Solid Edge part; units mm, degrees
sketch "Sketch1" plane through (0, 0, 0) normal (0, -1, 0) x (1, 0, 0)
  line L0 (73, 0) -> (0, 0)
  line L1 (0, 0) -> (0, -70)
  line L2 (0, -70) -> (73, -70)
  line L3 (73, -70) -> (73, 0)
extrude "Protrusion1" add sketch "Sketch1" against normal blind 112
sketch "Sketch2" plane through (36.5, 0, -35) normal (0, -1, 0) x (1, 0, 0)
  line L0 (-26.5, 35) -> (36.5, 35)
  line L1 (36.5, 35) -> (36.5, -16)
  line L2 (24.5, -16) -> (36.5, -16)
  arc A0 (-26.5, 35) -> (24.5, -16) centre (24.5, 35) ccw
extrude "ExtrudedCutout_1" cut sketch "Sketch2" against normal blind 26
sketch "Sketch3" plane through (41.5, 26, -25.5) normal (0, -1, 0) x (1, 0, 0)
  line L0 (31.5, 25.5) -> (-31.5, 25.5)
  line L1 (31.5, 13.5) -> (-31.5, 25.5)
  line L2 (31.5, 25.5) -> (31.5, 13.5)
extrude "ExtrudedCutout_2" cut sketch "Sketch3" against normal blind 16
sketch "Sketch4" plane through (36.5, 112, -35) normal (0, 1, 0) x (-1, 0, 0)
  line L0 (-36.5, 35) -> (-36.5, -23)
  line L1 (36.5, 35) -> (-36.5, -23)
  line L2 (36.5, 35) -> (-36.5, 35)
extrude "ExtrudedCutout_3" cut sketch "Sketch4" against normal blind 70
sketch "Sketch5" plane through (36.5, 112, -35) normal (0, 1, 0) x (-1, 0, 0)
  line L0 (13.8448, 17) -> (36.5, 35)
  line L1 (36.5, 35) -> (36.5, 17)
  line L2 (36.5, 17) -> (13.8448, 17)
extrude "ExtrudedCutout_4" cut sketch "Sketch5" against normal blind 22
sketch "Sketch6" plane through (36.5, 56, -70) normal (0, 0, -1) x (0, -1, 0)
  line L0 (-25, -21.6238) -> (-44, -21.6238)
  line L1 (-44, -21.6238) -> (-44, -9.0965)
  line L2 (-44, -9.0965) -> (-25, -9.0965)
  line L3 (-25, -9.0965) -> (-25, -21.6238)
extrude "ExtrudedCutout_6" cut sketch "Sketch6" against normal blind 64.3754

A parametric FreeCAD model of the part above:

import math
import FreeCAD as App
import Part
import Sketcher

V = App.Vector

doc = App.newDocument("Part")
body = doc.addObject("PartDesign::Body", "Body")

sketch1 = doc.addObject("Sketcher::SketchObject", "Sketch")
body.addObject(sketch1)
sketch1.AttachmentSupport = (doc.XZ_Plane, [""])
sketch1.MapMode = "FlatFace"
sketch1.addGeometry(Part.LineSegment(V(73, -70, 0), V(73, 0, 0)), False)
sketch1.addGeometry(Part.LineSegment(V(73, 0, 0), V(0, 0, 0)), False)
sketch1.addGeometry(Part.LineSegment(V(0, 0, 0), V(0, -70, 0)), False)
sketch1.addGeometry(Part.LineSegment(V(0, -70, 0), V(73, -70, 0)), False)
sketch1.addConstraint(Sketcher.Constraint("Coincident", 0, 2, 1, 1))
sketch1.addConstraint(Sketcher.Constraint("Coincident", 1, 2, 2, 1))
sketch1.addConstraint(Sketcher.Constraint("Coincident", 2, 2, 3, 1))
sketch1.addConstraint(Sketcher.Constraint("Coincident", 3, 2, 0, 1))
sketch1.addConstraint(Sketcher.Constraint("Vertical", 0))
sketch1.addConstraint(Sketcher.Constraint("Horizontal", 1))
sketch1.addConstraint(Sketcher.Constraint("Vertical", 2))
sketch1.addConstraint(Sketcher.Constraint("Horizontal", 3))
sketch1.addConstraint(Sketcher.Constraint("Coincident", 1, 2, -1, 1))
sketch1.addConstraint(Sketcher.Constraint("DistanceX", 1, 2, 1, 1, 73.0))
sketch1.addConstraint(Sketcher.Constraint("DistanceY", 0, 1, 0, 2, 70.0))
pad1 = doc.addObject("PartDesign::Pad", "Pad")
body.addObject(pad1)
pad1.Profile = sketch1
pad1.Length = 112
pad1.Reversed = True

sketch2 = doc.addObject("Sketcher::SketchObject", "Sketch001")
body.addObject(sketch2)
sketch2.AttachmentSupport = (doc.XZ_Plane, [""])
sketch2.MapMode = "FlatFace"
sketch2.addGeometry(Part.LineSegment(V(73, 0, 0), V(10, 0, 0)), False)
sketch2.addGeometry(Part.ArcOfCircle(Part.Circle(V(61, 0, 0), V(0, 0, 1), 51), math.radians(180), math.radians(270)), False)
sketch2.addGeometry(Part.LineSegment(V(61, -51, 0), V(73, -51, 0)), False)
sketch2.addGeometry(Part.LineSegment(V(73, -51, 0), V(73, 0, 0)), False)
sketch2.addConstraint(Sketcher.Constraint("Coincident", 0, 2, 1, 1))
sketch2.addConstraint(Sketcher.Constraint("Tangent", 1, 2, 2, 1))
sketch2.addConstraint(Sketcher.Constraint("Coincident", 2, 2, 3, 1))
sketch2.addConstraint(Sketcher.Constraint("Coincident", 3, 2, 0, 1))
sketch2.addConstraint(Sketcher.Constraint("Horizontal", 0))
sketch2.addConstraint(Sketcher.Constraint("Horizontal", 2))
sketch2.addConstraint(Sketcher.Constraint("Vertical", 3))
sketch2.addConstraint(Sketcher.Constraint("PointOnObject", 1, 3, -1))
sketch2.addConstraint(Sketcher.Constraint("PointOnObject", 0, 2, -1))
sketch2.addConstraint(Sketcher.Constraint("Radius", 1, 51.0))
sketch2.addConstraint(Sketcher.Constraint("DistanceX", 0, 2, 0, 1, 63.0))
sketch2.addConstraint(Sketcher.Constraint("DistanceX", -1, 1, 1, 3, 61.0))
pocket1 = doc.addObject("PartDesign::Pocket", "Pocket")
body.addObject(pocket1)
pocket1.Profile = sketch2
pocket1.Length = 26

sketch3 = doc.addObject("Sketcher::SketchObject", "Sketch002")
body.addObject(sketch3)
sketch3.AttachmentSupport = (doc.XZ_Plane, [""])
sketch3.MapMode = "FlatFace"
sketch3.AttachmentOffset = App.Placement(V(0, 0, -26), App.Rotation())
sketch3.addGeometry(Part.LineSegment(V(73, -12, 0), V(73, 0, 0)), False)
sketch3.addGeometry(Part.LineSegment(V(73, 0, 0), V(10, 0, 0)), False)
sketch3.addGeometry(Part.LineSegment(V(10, 0, 0), V(73, -12, 0)), False)
sketch3.addConstraint(Sketcher.Constraint("Coincident", 0, 2, 1, 1))
sketch3.addConstraint(Sketcher.Constraint("Coincident", 1, 2, 2, 1))
sketch3.addConstraint(Sketcher.Constraint("Coincident", 2, 2, 0, 1))
sketch3.addConstraint(Sketcher.Constraint("Vertical", 0))
sketch3.addConstraint(Sketcher.Constraint("Horizontal", 1))
sketch3.addConstraint(Sketcher.Constraint("PointOnObject", 0, 2, -1))
sketch3.addConstraint(Sketcher.Constraint("DistanceX", 1, 2, 1, 1, 63.0))
sketch3.addConstraint(Sketcher.Constraint("DistanceY", 0, 1, 0, 2, 12.0))
sketch3.addConstraint(Sketcher.Constraint("DistanceX", -1, 1, 0, 2, 73.0))
pocket2 = doc.addObject("PartDesign::Pocket", "Pocket001")
body.addObject(pocket2)
pocket2.Profile = sketch3
pocket2.Length = 16

sketch4 = doc.addObject("Sketcher::SketchObject", "Sketch003")
body.addObject(sketch4)
sketch4.AttachmentSupport = (doc.XZ_Plane, [""])
sketch4.MapMode = "FlatFace"
sketch4.AttachmentOffset = App.Placement(V(0, 0, -112), App.Rotation())
sketch4.addGeometry(Part.LineSegment(V(0, 0, 0), V(73, 0, 0)), False)
sketch4.addGeometry(Part.LineSegment(V(73, 0, 0), V(73, -58, 0)), False)
sketch4.addGeometry(Part.LineSegment(V(73, -58, 0), V(0, 0, 0)), False)
sketch4.addConstraint(Sketcher.Constraint("Coincident", 0, 2, 1, 1))
sketch4.addConstraint(Sketcher.Constraint("Coincident", 1, 2, 2, 1))
sketch4.addConstraint(Sketcher.Constraint("Coincident", 2, 2, 0, 1))
sketch4.addConstraint(Sketcher.Constraint("Horizontal", 0))
sketch4.addConstraint(Sketcher.Constraint("Vertical", 1))
sketch4.addConstraint(Sketcher.Constraint("Coincident", 2, 2, -1, 1))
sketch4.addConstraint(Sketcher.Constraint("DistanceX", 0, 1, 0, 2, 73.0))
sketch4.addConstraint(Sketcher.Constraint("DistanceY", 1, 2, 1, 1, 58.0))
pocket3 = doc.addObject("PartDesign::Pocket", "Pocket002")
body.addObject(pocket3)
pocket3.Profile = sketch4
pocket3.Length = 70
pocket3.Reversed = True

sketch5 = doc.addObject("Sketcher::SketchObject", "Sketch004")
body.addObject(sketch5)
sketch5.AttachmentSupport = (doc.XZ_Plane, [""])
sketch5.MapMode = "FlatFace"
sketch5.AttachmentOffset = App.Placement(V(0, 0, -112), App.Rotation())
sketch5.addGeometry(Part.LineSegment(V(0, 0, 0), V(23, -18, 0)), False)
sketch5.addGeometry(Part.LineSegment(V(23, -18, 0), V(0, -18, 0)), False)
sketch5.addGeometry(Part.LineSegment(V(0, -18, 0), V(0, 0, 0)), False)
sketch5.addConstraint(Sketcher.Constraint("Coincident", 0, 2, 1, 1))
sketch5.addConstraint(Sketcher.Constraint("Coincident", 1, 2, 2, 1))
sketch5.addConstraint(Sketcher.Constraint("Coincident", 2, 2, 0, 1))
sketch5.addConstraint(Sketcher.Constraint("Horizontal", 1))
sketch5.addConstraint(Sketcher.Constraint("Vertical", 2))
sketch5.addConstraint(Sketcher.Constraint("Coincident", 2, 2, -1, 1))
sketch5.addConstraint(Sketcher.Constraint("DistanceY", 2, 1, 2, 2, 18.0))
sketch5.addConstraint(Sketcher.Constraint("DistanceX", 1, 2, 1, 1, 22.6552))
pocket4 = doc.addObject("PartDesign::Pocket", "Pocket003")
body.addObject(pocket4)
pocket4.Profile = sketch5
pocket4.Length = 22
pocket4.Reversed = True

sketch6 = doc.addObject("Sketcher::SketchObject", "Sketch005")
body.addObject(sketch6)
sketch6.AttachmentSupport = (doc.XY_Plane, [""])
sketch6.MapMode = "FlatFace"
sketch6.AttachmentOffset = App.Placement(V(0, 0, -70), App.Rotation())
sketch6.addGeometry(Part.LineSegment(V(58, 100, 0), V(58, 81, 0)), False)
sketch6.addGeometry(Part.LineSegment(V(58, 81, 0), V(46, 81, 0)), False)
sketch6.addGeometry(Part.LineSegment(V(46, 81, 0), V(46, 100, 0)), False)
sketch6.addGeometry(Part.LineSegment(V(46, 100, 0), V(58, 100, 0)), False)
sketch6.addConstraint(Sketcher.Constraint("Coincident", 0, 2, 1, 1))
sketch6.addConstraint(Sketcher.Constraint("Coincident", 1, 2, 2, 1))
sketch6.addConstraint(Sketcher.Constraint("Coincident", 2, 2, 3, 1))
sketch6.addConstraint(Sketcher.Constraint("Coincident", 3, 2, 0, 1))
sketch6.addConstraint(Sketcher.Constraint("Vertical", 0))
sketch6.addConstraint(Sketcher.Constraint("Horizontal", 1))
sketch6.addConstraint(Sketcher.Constraint("Vertical", 2))
sketch6.addConstraint(Sketcher.Constraint("Horizontal", 3))
sketch6.addConstraint(Sketcher.Constraint("DistanceY", 0, 2, 0, 1, 19.0))
sketch6.addConstraint(Sketcher.Constraint("DistanceY", -1, 1, 0, 2, 81.0))
sketch6.addConstraint(Sketcher.Constraint("DistanceX", 1, 2, 1, 1, 12.5273))
sketch6.addConstraint(Sketcher.Constraint("DistanceX", -1, 1, 0, 2, 58.1238))
pocket5 = doc.addObject("PartDesign::Pocket", "Pocket004")
body.addObject(pocket5)
pocket5.Profile = sketch6
pocket5.Length = 64.3754
pocket5.Reversed = True

doc.recompute()
